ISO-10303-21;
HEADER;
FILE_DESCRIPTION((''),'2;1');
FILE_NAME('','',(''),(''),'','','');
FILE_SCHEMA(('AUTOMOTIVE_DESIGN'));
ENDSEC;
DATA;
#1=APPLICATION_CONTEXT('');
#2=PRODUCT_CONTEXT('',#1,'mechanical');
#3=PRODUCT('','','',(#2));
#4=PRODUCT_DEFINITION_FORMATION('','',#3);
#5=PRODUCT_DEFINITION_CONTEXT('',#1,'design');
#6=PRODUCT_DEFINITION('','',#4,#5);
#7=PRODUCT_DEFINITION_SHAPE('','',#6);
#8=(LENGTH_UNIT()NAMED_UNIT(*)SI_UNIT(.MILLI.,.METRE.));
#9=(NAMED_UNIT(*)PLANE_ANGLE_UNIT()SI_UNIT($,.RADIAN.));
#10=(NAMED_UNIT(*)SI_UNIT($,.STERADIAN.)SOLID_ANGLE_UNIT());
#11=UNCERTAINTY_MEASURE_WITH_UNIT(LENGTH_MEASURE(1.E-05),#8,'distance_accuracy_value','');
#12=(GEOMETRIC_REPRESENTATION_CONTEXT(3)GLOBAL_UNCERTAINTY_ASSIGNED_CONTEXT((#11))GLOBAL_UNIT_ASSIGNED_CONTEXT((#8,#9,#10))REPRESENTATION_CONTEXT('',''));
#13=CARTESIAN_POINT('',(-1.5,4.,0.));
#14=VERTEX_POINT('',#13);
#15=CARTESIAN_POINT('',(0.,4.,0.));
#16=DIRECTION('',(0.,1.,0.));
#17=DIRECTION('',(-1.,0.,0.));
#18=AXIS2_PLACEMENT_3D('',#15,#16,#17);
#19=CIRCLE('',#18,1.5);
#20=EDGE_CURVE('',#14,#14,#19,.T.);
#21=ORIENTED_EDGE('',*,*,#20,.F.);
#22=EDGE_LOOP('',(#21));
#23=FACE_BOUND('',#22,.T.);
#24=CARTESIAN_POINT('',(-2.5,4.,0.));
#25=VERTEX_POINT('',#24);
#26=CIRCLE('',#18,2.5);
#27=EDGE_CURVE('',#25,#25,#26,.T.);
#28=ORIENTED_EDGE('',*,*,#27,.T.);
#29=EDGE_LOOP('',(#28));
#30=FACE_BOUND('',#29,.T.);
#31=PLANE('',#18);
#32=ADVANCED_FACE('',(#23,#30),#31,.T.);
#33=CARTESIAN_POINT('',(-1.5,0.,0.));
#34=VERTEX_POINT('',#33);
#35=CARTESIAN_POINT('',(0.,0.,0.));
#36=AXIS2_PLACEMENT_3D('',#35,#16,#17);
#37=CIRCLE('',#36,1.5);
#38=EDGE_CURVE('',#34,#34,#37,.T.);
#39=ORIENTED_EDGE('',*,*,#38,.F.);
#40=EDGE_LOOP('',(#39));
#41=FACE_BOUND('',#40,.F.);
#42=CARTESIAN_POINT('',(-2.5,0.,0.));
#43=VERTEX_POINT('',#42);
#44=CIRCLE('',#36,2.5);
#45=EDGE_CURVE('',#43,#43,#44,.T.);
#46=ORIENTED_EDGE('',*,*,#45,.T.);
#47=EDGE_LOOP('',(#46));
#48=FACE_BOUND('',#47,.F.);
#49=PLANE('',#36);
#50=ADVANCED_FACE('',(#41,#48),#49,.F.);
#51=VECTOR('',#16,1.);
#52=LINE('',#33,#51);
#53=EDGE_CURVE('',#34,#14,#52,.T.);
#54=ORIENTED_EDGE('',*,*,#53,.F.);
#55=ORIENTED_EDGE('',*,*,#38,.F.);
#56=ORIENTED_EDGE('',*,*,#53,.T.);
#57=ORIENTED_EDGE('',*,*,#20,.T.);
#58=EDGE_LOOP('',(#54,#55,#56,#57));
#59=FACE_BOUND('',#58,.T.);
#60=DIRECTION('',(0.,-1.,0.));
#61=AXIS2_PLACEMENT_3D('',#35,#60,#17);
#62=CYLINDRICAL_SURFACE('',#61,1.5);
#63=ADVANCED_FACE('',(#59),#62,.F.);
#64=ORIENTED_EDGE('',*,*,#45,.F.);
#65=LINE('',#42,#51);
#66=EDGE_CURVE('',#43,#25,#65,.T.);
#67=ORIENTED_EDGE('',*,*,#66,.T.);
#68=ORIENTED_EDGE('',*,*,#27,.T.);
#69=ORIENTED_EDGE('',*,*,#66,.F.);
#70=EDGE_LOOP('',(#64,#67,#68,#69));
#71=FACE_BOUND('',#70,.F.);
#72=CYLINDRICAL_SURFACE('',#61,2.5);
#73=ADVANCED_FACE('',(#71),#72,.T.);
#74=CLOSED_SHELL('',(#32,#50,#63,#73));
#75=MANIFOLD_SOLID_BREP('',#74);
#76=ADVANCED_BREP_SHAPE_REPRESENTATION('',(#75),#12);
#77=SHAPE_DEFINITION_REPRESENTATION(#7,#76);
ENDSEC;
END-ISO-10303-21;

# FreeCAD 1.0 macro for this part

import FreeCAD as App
import Part
import Sketcher

V = App.Vector

doc = App.newDocument("Part")
body = doc.addObject("PartDesign::Body", "Body")

# Sketch on XZ plane
sketch1 = doc.addObject("Sketcher::SketchObject", "Sketch")
body.addObject(sketch1)
sketch1.AttachmentSupport = (doc.XZ_Plane, [""])
sketch1.MapMode = "FlatFace"
sketch1.addGeometry([
    Part.Circle(V(0, 0, 0), V(0, 0, 1), 2.5),
    Part.Circle(V(0, 0, 0), V(0, 0, 1), 1.5),
], False)
sketch1.addConstraint([
    Sketcher.Constraint("Coincident", 0, 3, -1, 1),
    Sketcher.Constraint("Coincident", 1, 3, -1, 1),
    Sketcher.Constraint("Diameter", 0, 5.0),
    Sketcher.Constraint("Diameter", 1, 3.0),
])
pad1 = doc.addObject("PartDesign::Pad", "Pad")
body.addObject(pad1)
pad1.Profile = sketch1
pad1.Length = 4
pad1.Reversed = True

doc.recompute()
